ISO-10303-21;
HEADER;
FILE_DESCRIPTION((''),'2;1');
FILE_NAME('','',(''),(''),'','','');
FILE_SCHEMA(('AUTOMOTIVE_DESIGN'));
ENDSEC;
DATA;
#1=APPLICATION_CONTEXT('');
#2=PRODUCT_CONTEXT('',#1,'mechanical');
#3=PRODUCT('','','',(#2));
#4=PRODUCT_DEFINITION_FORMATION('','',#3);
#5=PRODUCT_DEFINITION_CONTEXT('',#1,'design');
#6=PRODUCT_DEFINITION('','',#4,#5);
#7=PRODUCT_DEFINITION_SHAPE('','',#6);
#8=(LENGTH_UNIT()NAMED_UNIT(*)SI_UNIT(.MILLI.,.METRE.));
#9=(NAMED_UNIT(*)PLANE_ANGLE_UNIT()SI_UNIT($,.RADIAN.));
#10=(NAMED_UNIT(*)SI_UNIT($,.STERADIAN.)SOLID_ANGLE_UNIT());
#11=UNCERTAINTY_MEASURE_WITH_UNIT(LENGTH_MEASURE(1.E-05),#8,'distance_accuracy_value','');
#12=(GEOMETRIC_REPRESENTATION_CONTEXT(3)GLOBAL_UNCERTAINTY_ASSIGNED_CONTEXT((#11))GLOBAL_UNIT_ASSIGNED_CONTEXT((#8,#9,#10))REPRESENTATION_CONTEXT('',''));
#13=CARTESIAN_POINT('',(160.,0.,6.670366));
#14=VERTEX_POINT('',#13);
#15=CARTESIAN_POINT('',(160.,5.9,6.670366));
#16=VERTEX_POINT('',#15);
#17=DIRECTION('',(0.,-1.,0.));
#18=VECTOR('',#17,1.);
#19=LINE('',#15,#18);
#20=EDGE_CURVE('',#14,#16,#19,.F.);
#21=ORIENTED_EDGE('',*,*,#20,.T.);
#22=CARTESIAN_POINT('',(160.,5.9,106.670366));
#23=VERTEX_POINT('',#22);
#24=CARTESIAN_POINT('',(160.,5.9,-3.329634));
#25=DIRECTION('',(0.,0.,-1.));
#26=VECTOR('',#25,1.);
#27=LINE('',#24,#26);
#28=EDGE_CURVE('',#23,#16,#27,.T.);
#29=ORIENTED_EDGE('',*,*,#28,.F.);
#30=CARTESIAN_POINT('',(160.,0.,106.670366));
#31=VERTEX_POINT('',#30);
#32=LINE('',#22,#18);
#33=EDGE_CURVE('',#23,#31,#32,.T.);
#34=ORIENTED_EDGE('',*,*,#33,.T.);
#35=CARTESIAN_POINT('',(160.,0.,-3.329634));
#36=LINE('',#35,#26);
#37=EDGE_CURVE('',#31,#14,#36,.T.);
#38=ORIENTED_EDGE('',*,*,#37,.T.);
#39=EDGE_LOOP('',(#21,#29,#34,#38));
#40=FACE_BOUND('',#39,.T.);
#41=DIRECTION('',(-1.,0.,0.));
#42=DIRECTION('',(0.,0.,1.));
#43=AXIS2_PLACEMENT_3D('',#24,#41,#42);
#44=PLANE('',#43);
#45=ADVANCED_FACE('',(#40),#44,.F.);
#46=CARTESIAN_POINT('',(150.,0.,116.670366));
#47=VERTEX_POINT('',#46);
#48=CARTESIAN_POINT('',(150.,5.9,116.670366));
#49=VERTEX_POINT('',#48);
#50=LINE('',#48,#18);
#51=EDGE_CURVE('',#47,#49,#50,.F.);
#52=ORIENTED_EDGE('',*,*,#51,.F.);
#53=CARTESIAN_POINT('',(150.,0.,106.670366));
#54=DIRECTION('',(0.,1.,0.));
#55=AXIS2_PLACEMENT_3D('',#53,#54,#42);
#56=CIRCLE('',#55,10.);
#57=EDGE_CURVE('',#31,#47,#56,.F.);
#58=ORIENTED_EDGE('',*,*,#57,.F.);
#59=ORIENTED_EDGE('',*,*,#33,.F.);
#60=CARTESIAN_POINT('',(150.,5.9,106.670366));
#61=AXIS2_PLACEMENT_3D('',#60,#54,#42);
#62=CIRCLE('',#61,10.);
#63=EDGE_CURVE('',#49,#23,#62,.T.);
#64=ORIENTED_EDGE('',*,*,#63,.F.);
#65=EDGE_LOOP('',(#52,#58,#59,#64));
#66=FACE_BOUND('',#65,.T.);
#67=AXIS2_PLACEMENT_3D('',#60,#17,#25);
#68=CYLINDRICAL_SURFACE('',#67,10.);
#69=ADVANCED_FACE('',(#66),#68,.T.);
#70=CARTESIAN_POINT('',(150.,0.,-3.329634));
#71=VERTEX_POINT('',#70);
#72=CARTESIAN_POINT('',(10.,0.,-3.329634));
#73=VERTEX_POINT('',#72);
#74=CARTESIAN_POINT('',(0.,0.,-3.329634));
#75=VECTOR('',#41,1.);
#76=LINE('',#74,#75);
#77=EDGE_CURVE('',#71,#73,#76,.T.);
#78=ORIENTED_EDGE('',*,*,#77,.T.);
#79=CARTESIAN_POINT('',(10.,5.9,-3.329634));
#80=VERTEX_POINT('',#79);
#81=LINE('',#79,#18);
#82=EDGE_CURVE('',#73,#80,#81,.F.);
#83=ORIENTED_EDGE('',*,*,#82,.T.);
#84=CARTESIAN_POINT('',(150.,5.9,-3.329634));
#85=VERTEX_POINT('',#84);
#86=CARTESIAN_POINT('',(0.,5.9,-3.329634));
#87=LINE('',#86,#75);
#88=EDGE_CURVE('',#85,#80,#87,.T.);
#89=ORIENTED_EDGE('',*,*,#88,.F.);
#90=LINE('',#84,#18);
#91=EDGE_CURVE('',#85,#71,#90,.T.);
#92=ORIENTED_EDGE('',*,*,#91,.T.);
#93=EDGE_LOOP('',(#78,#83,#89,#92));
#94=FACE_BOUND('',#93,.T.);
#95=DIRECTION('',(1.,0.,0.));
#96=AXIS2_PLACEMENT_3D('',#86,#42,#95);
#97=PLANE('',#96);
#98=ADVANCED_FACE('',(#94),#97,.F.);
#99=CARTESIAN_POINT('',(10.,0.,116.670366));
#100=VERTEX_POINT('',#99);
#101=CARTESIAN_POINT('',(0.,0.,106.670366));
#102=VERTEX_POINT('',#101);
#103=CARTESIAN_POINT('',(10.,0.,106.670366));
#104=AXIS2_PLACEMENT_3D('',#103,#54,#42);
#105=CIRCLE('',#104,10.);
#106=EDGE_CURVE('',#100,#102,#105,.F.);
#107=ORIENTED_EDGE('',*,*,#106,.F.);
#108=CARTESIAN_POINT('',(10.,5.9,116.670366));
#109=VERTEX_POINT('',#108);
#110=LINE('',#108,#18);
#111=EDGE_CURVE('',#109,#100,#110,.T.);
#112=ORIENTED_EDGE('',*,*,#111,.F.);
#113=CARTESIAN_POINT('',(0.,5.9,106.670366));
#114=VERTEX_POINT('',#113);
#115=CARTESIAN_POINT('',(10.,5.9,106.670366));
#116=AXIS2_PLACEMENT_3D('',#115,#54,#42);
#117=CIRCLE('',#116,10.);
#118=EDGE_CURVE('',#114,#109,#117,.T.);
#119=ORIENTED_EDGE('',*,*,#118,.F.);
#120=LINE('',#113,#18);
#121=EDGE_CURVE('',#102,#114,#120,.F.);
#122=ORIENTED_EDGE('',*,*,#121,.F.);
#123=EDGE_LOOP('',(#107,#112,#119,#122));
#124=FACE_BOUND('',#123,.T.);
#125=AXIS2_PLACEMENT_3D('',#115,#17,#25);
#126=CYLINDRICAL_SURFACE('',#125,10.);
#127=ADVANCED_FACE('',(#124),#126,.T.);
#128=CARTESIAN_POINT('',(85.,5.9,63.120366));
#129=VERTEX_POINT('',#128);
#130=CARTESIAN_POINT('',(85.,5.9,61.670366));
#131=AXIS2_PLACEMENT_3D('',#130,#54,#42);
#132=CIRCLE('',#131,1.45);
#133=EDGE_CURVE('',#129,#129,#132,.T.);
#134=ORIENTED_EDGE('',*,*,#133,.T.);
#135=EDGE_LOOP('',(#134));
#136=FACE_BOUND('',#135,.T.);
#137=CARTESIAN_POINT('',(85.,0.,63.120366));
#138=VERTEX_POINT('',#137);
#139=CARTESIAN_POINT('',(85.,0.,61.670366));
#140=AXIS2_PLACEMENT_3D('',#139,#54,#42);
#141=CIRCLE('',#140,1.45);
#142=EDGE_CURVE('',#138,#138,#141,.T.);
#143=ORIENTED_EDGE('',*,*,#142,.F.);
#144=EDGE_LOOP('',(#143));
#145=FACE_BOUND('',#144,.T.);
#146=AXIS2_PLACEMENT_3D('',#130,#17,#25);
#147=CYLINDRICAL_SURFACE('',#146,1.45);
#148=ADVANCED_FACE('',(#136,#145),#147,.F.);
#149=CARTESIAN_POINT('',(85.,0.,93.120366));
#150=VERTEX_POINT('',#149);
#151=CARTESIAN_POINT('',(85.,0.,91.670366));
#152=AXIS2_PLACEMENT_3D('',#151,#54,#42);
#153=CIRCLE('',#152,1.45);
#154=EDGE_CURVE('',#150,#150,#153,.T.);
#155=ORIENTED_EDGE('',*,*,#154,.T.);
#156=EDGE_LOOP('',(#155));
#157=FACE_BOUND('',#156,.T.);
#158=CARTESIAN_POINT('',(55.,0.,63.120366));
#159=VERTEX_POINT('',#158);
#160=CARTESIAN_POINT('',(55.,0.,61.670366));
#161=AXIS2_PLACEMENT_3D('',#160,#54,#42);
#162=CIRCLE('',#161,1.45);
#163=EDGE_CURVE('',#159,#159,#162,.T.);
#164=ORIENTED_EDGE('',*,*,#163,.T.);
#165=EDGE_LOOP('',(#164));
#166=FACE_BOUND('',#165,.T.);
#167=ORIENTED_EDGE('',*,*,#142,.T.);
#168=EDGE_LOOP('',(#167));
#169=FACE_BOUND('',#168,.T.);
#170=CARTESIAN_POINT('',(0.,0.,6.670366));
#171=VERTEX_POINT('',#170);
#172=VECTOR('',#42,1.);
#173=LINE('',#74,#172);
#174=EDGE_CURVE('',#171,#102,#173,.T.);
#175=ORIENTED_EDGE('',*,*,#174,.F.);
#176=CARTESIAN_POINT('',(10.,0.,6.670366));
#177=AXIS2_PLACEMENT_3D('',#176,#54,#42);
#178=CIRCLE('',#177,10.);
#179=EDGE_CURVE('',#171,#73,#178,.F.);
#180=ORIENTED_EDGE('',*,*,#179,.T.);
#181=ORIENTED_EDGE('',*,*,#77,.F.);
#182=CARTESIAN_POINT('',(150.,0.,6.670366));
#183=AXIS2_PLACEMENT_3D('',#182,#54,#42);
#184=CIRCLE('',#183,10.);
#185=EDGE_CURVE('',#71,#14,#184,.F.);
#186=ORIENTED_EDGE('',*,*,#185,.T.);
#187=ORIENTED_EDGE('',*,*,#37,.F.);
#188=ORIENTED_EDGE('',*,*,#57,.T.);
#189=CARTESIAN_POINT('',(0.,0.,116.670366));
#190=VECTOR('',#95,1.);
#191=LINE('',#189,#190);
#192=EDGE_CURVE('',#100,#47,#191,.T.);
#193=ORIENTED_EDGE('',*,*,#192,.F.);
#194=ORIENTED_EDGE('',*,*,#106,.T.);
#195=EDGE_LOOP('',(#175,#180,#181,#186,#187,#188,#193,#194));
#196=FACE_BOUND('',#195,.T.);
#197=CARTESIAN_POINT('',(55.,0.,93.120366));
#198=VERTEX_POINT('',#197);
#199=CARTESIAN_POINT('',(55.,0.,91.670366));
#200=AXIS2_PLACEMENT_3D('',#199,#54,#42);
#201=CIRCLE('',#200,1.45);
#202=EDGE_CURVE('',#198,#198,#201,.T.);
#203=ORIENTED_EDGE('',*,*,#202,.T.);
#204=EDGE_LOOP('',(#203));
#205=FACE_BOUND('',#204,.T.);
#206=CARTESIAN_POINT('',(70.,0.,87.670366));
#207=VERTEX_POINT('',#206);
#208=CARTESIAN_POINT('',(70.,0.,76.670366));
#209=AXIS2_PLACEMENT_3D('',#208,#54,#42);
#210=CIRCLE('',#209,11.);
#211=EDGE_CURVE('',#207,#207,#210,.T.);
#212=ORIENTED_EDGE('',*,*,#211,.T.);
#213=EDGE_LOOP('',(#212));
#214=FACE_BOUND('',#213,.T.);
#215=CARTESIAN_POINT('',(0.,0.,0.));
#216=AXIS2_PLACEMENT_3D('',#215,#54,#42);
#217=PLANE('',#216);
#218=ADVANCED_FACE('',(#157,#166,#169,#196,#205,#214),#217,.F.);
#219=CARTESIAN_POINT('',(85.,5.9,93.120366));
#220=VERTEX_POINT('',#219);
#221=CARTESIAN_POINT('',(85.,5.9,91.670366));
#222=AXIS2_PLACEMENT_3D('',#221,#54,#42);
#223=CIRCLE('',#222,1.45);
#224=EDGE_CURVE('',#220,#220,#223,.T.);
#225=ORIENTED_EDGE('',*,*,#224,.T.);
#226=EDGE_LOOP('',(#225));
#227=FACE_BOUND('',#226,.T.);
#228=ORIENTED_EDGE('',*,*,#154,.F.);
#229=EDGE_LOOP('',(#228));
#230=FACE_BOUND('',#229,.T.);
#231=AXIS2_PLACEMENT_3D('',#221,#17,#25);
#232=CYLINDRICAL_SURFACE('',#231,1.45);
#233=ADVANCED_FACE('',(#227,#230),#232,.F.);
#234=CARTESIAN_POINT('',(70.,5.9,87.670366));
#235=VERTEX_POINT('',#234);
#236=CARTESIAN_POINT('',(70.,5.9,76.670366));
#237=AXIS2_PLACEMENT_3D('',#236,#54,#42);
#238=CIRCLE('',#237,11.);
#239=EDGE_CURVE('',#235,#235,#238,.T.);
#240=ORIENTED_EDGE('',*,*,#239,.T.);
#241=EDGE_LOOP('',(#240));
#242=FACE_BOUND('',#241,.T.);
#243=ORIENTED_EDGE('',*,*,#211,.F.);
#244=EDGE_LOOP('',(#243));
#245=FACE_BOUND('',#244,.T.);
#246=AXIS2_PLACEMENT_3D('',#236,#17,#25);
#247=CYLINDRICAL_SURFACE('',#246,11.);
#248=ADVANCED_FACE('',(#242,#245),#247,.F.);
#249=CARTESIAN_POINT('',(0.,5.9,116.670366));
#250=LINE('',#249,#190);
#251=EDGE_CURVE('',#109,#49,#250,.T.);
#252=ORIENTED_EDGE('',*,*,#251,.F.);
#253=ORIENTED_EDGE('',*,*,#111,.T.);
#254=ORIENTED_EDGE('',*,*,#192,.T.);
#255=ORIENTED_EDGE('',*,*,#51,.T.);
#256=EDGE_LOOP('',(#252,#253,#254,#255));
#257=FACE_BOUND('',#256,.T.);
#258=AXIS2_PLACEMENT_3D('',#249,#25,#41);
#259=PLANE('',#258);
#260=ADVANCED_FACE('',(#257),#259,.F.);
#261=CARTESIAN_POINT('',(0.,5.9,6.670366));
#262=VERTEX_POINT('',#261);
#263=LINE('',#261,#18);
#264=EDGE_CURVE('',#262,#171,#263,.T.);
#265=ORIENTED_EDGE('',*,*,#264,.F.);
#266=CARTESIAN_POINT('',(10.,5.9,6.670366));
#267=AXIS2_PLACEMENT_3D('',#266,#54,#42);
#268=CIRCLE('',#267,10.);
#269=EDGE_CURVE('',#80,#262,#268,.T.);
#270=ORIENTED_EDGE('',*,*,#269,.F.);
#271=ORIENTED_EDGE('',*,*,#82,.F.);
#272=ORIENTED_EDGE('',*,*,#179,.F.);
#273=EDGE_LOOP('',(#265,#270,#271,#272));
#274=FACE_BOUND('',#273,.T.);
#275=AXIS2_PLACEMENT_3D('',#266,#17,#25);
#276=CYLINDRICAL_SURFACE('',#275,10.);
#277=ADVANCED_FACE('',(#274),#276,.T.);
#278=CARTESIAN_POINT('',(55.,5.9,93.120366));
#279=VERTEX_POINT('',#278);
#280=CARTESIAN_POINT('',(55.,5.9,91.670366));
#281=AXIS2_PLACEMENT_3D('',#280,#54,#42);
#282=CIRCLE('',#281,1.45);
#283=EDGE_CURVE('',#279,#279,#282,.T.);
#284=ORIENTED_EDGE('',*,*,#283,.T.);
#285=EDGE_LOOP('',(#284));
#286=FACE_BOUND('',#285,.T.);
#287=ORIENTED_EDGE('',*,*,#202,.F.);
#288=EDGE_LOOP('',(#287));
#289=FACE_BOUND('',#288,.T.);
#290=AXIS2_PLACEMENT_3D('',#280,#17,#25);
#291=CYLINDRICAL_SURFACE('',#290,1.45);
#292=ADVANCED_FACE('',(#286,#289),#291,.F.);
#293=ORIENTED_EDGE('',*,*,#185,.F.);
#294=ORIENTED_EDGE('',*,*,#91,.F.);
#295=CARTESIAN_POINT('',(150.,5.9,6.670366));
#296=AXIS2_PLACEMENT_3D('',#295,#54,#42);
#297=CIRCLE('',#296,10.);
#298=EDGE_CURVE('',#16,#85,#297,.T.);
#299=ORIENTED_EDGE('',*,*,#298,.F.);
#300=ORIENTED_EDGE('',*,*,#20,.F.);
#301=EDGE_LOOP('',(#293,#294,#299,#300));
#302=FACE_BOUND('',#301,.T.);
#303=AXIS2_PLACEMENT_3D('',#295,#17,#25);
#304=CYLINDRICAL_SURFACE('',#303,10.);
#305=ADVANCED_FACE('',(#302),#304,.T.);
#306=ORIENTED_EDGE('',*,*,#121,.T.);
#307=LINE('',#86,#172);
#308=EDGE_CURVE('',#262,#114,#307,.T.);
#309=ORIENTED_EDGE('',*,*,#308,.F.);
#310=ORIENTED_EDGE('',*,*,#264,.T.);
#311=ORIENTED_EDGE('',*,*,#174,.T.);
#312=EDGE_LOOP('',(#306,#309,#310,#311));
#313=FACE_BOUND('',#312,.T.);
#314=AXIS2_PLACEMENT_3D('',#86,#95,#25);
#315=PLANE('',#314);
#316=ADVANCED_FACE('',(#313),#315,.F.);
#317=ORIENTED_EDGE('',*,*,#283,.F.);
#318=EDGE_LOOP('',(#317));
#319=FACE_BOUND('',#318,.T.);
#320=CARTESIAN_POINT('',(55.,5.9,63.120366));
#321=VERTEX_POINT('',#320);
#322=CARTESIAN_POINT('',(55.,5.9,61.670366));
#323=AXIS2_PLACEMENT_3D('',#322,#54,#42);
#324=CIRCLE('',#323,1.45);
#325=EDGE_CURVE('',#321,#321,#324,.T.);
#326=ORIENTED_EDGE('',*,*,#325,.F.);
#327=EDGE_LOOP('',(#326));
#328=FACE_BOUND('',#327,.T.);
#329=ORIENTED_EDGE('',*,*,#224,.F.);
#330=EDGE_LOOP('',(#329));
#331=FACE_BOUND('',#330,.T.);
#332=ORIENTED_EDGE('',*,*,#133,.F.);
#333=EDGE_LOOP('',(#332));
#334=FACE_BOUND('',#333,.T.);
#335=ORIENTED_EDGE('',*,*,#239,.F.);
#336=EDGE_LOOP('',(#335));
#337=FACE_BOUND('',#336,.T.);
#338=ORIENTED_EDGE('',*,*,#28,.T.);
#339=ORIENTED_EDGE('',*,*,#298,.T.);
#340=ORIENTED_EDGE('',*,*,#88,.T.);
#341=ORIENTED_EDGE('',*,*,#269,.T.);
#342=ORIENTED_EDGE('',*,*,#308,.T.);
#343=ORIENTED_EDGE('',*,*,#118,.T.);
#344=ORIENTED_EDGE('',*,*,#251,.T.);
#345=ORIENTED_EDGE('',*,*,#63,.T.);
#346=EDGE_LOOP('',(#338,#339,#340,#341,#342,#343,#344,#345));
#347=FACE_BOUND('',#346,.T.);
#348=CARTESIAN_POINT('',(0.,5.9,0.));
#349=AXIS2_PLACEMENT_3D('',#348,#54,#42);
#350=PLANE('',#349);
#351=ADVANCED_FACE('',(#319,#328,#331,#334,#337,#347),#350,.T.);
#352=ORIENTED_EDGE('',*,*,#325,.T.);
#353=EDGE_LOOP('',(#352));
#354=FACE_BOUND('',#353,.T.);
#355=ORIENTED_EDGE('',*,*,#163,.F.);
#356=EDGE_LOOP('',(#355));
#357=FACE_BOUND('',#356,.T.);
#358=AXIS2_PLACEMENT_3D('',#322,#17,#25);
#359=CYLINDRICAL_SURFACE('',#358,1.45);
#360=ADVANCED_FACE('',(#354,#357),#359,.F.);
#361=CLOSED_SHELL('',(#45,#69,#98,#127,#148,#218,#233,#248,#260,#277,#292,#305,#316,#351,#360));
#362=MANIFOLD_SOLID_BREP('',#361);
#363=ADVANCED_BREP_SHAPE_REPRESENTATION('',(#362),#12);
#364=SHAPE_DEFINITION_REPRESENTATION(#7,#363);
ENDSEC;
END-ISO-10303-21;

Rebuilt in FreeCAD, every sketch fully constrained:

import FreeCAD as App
import Part
import Sketcher

V = App.Vector
Q = App.Units.Quantity


def edges_at(feature, points):
    """Names of the edges that pass closest to the given points."""
    edges = feature.Shape.Edges
    near = lambda p: min(range(len(edges)), key=lambda i: edges[i].distToShape(Part.Vertex(*p))[0])
    return sorted({f"Edge{near(p) + 1}" for p in points})

doc = App.newDocument("Part")
params = doc.addObject("Spreadsheet::Sheet", "Params")
for row, (alias, value) in enumerate([
    ("sketch1_diameter", "22 mm"),
    ("sketch1_diameter2", "2.9 mm"),
    ("sketch1_width", "160 mm"),
    ("sketch1_height", "120 mm"),
    ("pad1_length", "5.9 mm"),
    ("fillet_radius", "10 mm"),
], start=1):
    params.set(f"A{row}", alias)
    params.set(f"B{row}", "=" + value)
    params.setAlias(f"B{row}", alias)

body = doc.addObject("PartDesign::Body", "Body")

# Sketch on XZ plane
sketch1 = body.newObject("Sketcher::SketchObject", "Sketch")
sketch1.AttachmentSupport = (doc.getObject("XZ_Plane"), [""])
sketch1.MapMode = "FlatFace"
sketch1.addGeometry([
    Part.LineSegment(V(0, -3.3, 0), V(0, 116.7, 0)),  # 0
    Part.LineSegment(V(0, 116.7, 0), V(160, 116.7, 0)),  # 1
    Part.LineSegment(V(160, 116.7, 0), V(160, -3.3, 0)),  # 2
    Part.LineSegment(V(160, -3.3, 0), V(0, -3.3, 0)),  # 3
    Part.Circle(V(55, 91.7, 0), V(0, 0, 1), 1.4),  # 4
    Part.Circle(V(85, 91.7, 0), V(0, 0, 1), 1.4),  # 5
    Part.Circle(V(55, 61.7, 0), V(0, 0, 1), 1.4),  # 6
    Part.Circle(V(70, 76.7, 0), V(0, 0, 1), 11),  # 7
    Part.Circle(V(85, 61.7, 0), V(0, 0, 1), 1.4),  # 8
], False)
sketch1.addConstraint([
    Sketcher.Constraint("Coincident", 0, 2, 1, 1),
    Sketcher.Constraint("Coincident", 1, 2, 2, 1),
    Sketcher.Constraint("Coincident", 2, 2, 3, 1),
    Sketcher.Constraint("Coincident", 3, 2, 0, 1),
    Sketcher.Constraint("Vertical", 0),
    Sketcher.Constraint("Horizontal", 1),
    Sketcher.Constraint("Vertical", 2),
    Sketcher.Constraint("Horizontal", 3),
    Sketcher.Constraint("Equal", 4, 5),
    Sketcher.Constraint("Equal", 5, 6),
    Sketcher.Constraint("Equal", 6, 8),
    Sketcher.Constraint("PointOnObject", 0, 2, -2),
    Sketcher.Constraint("Horizontal", 4, 3, 5, 3),
    Sketcher.Constraint("Horizontal", 6, 3, 8, 3),
    Sketcher.Constraint("Vertical", 4, 3, 6, 3),
    Sketcher.Constraint("Vertical", 5, 3, 8, 3),
    Sketcher.Constraint("Diameter", 7, Q("22 mm")),
    Sketcher.Constraint("Diameter", 4, Q("2.9 mm")),
    Sketcher.Constraint("DistanceX", 1, 1, 1, 2, Q("160 mm")),
    Sketcher.Constraint("DistanceY", 0, 1, 0, 2, Q("120 mm")),
    Sketcher.Constraint("DistanceX", -1, 1, 4, 3, Q("55 mm")),
    Sketcher.Constraint("DistanceX", -1, 1, 5, 3, Q("85 mm")),
    Sketcher.Constraint("DistanceX", -1, 1, 7, 3, Q("70 mm")),
    Sketcher.Constraint("DistanceY", 6, 3, 4, 3, Q("30 mm")),
    Sketcher.Constraint("DistanceY", 6, 3, 7, 3, Q("15 mm")),
    Sketcher.Constraint("DistanceY", 4, 3, 0, 2, Q("25 mm")),
    Sketcher.Constraint("DistanceY", -1, 1, 4, 3, Q("91.670366 mm")),
])
sketch1.setExpression("Constraints[16]", "Params.sketch1_diameter")
sketch1.setExpression("Constraints[17]", "Params.sketch1_diameter2")
sketch1.setExpression("Constraints[18]", "Params.sketch1_width")
sketch1.setExpression("Constraints[19]", "Params.sketch1_height")
pad1 = body.newObject("PartDesign::Pad", "Pad")
pad1.Profile = sketch1
pad1.setExpression("Length", "Params.pad1_length")
pad1.Reversed = True
doc.recompute()

fillet = body.newObject("PartDesign::Fillet", "Fillet")
fillet.Base = (pad1, edges_at(pad1, [
    (0, 2.95, -3.33),
    (160, 2.95, -3.33),
    (160, 2.95, 116.67),
    (0, 2.95, 116.67),
]))
fillet.setExpression("Radius", "Params.fillet_radius")

doc.recompute()
